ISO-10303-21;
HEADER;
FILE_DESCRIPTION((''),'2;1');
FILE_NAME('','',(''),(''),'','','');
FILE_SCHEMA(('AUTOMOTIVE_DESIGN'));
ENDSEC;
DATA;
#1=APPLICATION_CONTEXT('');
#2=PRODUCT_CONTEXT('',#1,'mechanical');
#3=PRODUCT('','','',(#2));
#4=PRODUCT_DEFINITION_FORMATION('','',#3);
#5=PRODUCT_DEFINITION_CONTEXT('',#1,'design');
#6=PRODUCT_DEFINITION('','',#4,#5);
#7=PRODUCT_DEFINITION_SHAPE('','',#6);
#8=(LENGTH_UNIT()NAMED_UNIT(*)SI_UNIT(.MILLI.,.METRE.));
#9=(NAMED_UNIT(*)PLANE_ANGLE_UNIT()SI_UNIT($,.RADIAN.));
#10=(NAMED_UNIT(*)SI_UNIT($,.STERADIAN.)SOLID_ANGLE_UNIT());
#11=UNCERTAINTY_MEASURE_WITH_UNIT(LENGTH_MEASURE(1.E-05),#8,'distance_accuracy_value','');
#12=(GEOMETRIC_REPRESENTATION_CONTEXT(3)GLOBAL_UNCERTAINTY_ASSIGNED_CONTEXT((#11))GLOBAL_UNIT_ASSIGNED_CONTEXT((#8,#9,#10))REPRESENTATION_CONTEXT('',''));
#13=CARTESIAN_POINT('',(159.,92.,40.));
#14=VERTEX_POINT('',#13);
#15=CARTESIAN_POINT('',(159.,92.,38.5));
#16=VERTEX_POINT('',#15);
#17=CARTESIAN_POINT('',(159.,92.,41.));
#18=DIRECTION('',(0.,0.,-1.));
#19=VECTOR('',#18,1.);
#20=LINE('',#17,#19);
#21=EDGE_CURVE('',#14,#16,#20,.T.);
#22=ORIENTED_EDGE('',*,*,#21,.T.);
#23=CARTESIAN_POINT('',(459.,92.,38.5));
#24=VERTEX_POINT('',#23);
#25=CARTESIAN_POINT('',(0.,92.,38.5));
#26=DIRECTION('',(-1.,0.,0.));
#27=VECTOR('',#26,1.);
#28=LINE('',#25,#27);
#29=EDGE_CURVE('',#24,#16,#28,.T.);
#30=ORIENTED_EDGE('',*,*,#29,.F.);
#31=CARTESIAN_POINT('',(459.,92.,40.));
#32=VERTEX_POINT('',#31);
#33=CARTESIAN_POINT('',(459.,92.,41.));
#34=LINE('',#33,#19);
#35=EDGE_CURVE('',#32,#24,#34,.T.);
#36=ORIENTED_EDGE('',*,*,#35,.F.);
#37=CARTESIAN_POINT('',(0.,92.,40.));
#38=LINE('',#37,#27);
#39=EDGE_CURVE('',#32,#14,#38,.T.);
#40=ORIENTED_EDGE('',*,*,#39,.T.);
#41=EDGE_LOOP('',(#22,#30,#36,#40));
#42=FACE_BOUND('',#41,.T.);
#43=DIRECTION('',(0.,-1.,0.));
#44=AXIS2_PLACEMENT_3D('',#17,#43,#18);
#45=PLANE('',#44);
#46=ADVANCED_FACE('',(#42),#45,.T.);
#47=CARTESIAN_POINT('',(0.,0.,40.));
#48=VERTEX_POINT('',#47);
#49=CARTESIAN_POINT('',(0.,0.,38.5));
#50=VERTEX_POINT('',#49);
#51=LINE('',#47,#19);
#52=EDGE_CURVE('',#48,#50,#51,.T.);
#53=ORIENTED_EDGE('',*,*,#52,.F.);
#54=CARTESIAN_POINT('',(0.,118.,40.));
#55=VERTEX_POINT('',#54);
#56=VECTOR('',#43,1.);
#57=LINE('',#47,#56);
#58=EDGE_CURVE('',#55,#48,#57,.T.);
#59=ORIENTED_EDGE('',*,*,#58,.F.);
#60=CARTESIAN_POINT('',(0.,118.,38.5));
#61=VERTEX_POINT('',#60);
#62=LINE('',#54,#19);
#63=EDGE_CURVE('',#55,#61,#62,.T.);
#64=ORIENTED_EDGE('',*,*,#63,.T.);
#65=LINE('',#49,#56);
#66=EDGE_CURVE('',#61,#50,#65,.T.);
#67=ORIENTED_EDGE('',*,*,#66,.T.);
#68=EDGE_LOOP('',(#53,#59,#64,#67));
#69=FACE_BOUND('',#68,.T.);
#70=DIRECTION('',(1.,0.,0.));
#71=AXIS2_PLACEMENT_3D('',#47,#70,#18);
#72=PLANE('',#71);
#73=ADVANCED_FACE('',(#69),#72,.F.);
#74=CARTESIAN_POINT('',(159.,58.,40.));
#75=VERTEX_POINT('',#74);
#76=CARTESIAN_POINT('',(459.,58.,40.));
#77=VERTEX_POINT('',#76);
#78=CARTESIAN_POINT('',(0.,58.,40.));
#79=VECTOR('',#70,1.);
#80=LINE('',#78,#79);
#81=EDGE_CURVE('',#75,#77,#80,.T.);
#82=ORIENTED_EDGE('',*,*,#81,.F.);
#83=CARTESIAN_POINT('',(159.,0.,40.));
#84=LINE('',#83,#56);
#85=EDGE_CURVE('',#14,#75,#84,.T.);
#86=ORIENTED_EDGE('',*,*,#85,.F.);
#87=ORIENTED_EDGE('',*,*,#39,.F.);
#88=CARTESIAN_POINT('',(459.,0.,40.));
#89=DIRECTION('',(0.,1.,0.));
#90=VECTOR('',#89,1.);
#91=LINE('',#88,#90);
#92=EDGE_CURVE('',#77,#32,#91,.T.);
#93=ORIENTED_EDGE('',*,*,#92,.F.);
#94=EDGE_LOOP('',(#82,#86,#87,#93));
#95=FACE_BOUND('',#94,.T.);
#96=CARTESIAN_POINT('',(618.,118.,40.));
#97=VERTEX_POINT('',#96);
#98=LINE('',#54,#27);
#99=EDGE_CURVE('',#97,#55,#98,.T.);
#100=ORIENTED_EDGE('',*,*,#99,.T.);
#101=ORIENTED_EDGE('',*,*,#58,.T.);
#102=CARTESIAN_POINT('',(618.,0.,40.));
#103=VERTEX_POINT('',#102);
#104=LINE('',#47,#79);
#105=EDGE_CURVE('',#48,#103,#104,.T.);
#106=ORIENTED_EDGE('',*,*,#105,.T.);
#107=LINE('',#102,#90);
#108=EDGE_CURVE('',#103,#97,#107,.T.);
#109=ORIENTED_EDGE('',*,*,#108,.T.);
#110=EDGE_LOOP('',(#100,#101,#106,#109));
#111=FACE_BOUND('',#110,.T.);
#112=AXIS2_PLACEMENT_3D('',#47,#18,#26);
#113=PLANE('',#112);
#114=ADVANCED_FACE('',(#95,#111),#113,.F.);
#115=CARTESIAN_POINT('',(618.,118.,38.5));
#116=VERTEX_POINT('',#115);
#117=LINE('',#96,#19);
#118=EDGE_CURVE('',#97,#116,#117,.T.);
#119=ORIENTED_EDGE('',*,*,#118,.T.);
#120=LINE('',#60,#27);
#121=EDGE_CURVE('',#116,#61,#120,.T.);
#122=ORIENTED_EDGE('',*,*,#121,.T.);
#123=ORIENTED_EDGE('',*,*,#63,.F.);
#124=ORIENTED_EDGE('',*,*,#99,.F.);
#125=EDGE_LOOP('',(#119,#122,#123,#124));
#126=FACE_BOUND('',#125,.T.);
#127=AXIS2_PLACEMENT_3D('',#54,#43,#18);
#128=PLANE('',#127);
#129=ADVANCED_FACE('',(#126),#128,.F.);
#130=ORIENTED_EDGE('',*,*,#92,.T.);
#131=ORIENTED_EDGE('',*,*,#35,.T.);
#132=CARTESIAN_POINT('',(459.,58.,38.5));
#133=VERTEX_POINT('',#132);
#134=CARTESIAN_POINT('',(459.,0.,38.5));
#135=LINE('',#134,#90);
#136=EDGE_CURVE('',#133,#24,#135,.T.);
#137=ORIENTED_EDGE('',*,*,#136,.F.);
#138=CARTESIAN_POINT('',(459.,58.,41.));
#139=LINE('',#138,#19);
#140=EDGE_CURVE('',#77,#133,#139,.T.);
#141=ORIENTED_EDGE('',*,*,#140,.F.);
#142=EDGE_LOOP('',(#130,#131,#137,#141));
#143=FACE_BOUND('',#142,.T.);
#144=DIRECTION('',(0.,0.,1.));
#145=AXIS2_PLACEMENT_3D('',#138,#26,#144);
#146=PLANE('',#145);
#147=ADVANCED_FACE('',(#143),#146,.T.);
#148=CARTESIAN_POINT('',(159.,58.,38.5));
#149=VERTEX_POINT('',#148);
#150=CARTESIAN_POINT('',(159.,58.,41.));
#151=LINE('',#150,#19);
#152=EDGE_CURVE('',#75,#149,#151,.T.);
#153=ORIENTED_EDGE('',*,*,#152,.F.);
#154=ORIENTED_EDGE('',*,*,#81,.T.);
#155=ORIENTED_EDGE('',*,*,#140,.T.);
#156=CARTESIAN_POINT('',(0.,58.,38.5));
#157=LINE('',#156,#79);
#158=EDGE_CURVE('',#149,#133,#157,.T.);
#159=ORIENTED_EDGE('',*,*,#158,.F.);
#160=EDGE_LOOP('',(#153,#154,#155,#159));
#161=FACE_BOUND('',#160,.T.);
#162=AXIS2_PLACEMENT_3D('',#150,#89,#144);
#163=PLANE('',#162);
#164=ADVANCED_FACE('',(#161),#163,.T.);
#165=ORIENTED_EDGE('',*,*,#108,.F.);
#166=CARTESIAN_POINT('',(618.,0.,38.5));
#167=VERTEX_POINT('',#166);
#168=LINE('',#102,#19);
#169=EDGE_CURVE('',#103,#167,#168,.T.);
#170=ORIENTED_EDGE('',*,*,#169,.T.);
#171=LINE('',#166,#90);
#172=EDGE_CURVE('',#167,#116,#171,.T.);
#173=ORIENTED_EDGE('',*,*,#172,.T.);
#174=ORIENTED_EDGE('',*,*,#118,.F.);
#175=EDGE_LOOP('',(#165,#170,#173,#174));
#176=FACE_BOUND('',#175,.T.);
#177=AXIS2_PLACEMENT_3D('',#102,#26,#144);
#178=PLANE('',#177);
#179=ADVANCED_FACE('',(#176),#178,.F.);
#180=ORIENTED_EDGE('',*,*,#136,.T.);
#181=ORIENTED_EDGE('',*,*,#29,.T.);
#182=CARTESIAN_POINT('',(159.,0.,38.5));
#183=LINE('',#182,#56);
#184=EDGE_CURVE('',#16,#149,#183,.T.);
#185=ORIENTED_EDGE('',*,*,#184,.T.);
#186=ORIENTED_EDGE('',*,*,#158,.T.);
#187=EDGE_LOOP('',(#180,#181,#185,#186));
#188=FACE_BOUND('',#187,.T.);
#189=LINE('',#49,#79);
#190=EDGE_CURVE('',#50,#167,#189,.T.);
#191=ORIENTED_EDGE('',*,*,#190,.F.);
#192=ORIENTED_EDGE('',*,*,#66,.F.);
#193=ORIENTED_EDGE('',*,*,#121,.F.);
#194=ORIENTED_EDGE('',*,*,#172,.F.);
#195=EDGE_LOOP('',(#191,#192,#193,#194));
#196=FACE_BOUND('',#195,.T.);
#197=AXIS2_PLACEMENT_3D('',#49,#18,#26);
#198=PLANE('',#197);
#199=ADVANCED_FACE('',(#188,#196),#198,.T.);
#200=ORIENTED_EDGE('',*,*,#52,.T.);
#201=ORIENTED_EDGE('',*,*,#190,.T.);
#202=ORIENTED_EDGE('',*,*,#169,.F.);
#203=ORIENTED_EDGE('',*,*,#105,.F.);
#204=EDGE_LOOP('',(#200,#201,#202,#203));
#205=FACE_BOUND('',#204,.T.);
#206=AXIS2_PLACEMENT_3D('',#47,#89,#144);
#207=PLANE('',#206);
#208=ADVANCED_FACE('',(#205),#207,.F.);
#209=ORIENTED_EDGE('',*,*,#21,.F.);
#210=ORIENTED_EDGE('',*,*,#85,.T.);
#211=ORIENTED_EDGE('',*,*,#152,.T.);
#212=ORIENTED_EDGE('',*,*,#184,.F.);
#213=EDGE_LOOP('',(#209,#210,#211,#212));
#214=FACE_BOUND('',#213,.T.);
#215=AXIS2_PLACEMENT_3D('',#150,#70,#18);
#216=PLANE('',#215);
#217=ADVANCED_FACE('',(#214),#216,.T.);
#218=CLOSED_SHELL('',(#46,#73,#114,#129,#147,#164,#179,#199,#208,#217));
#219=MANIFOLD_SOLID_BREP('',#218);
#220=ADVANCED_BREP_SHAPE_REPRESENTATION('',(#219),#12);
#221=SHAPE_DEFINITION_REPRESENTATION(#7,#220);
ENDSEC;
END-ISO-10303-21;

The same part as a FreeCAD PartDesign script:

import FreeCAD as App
import Part
import Sketcher
from FreeCAD import Vector

doc = App.newDocument("Part")
body = doc.addObject("PartDesign::Body", "Body")

sketch1 = body.newObject("Sketcher::SketchObject", "Sketch")
sketch1.AttachmentSupport = (doc.getObject("XY_Plane"), [""])
sketch1.MapMode = "FlatFace"
sketch1.AttachmentOffset = App.Placement(Vector(0, 0, 38.5), App.Rotation())
sketch1.addGeometry(Part.LineSegment(Vector(0, 118, 0), Vector(0, 0, 0)), False)
sketch1.addGeometry(Part.LineSegment(Vector(0, 0, 0), Vector(618, 0, 0)), False)
sketch1.addGeometry(Part.LineSegment(Vector(618, 0, 0), Vector(618, 118, 0)), False)
sketch1.addGeometry(Part.LineSegment(Vector(618, 118, 0), Vector(0, 118, 0)), False)
sketch1.addConstraint(Sketcher.Constraint("Coincident", 0, 2, 1, 1))
sketch1.addConstraint(Sketcher.Constraint("Coincident", 1, 2, 2, 1))
sketch1.addConstraint(Sketcher.Constraint("Coincident", 2, 2, 3, 1))
sketch1.addConstraint(Sketcher.Constraint("Coincident", 3, 2, 0, 1))
sketch1.addConstraint(Sketcher.Constraint("Vertical", 0))
sketch1.addConstraint(Sketcher.Constraint("Horizontal", 1))
sketch1.addConstraint(Sketcher.Constraint("Vertical", 2))
sketch1.addConstraint(Sketcher.Constraint("Horizontal", 3))
sketch1.addConstraint(Sketcher.Constraint("Coincident", 0, 2, -1, 1))
sketch1.addConstraint(Sketcher.Constraint("DistanceX", 1, 1, 1, 2, 618.0))
sketch1.addConstraint(Sketcher.Constraint("DistanceY", 0, 2, 0, 1, 118.0))
pad1 = body.newObject("PartDesign::Pad", "Pad")
pad1.Profile = sketch1
pad1.Length = 1.5

sketch2 = body.newObject("Sketcher::SketchObject", "Sketch001")
sketch2.AttachmentSupport = (doc.getObject("XY_Plane"), [""])
sketch2.MapMode = "FlatFace"
sketch2.AttachmentOffset = App.Placement(Vector(0, 0, 27), App.Rotation())
sketch2.addGeometry(Part.LineSegment(Vector(159, 92, 0), Vector(159, 58, 0)), False)
sketch2.addGeometry(Part.LineSegment(Vector(159, 58, 0), Vector(459, 58, 0)), False)
sketch2.addGeometry(Part.LineSegment(Vector(459, 58, 0), Vector(459, 92, 0)), False)
sketch2.addGeometry(Part.LineSegment(Vector(459, 92, 0), Vector(159, 92, 0)), False)
sketch2.addConstraint(Sketcher.Constraint("Coincident", 0, 2, 1, 1))
sketch2.addConstraint(Sketcher.Constraint("Coincident", 1, 2, 2, 1))
sketch2.addConstraint(Sketcher.Constraint("Coincident", 2, 2, 3, 1))
sketch2.addConstraint(Sketcher.Constraint("Coincident", 3, 2, 0, 1))
sketch2.addConstraint(Sketcher.Constraint("Vertical", 0))
sketch2.addConstraint(Sketcher.Constraint("Horizontal", 1))
sketch2.addConstraint(Sketcher.Constraint("Vertical", 2))
sketch2.addConstraint(Sketcher.Constraint("Horizontal", 3))
sketch2.addConstraint(Sketcher.Constraint("DistanceX", 1, 1, 1, 2, 300.0))
sketch2.addConstraint(Sketcher.Constraint("DistanceY", 0, 2, 0, 1, 34.0))
sketch2.addConstraint(Sketcher.Constraint("DistanceX", -1, 1, 0, 2, 159.0))
sketch2.addConstraint(Sketcher.Constraint("DistanceY", -1, 1, 0, 2, 58.0))
pocket1 = body.newObject("PartDesign::Pocket", "Pocket")
pocket1.Profile = sketch2
pocket1.Length = 14
pocket1.Reversed = True

doc.recompute()
